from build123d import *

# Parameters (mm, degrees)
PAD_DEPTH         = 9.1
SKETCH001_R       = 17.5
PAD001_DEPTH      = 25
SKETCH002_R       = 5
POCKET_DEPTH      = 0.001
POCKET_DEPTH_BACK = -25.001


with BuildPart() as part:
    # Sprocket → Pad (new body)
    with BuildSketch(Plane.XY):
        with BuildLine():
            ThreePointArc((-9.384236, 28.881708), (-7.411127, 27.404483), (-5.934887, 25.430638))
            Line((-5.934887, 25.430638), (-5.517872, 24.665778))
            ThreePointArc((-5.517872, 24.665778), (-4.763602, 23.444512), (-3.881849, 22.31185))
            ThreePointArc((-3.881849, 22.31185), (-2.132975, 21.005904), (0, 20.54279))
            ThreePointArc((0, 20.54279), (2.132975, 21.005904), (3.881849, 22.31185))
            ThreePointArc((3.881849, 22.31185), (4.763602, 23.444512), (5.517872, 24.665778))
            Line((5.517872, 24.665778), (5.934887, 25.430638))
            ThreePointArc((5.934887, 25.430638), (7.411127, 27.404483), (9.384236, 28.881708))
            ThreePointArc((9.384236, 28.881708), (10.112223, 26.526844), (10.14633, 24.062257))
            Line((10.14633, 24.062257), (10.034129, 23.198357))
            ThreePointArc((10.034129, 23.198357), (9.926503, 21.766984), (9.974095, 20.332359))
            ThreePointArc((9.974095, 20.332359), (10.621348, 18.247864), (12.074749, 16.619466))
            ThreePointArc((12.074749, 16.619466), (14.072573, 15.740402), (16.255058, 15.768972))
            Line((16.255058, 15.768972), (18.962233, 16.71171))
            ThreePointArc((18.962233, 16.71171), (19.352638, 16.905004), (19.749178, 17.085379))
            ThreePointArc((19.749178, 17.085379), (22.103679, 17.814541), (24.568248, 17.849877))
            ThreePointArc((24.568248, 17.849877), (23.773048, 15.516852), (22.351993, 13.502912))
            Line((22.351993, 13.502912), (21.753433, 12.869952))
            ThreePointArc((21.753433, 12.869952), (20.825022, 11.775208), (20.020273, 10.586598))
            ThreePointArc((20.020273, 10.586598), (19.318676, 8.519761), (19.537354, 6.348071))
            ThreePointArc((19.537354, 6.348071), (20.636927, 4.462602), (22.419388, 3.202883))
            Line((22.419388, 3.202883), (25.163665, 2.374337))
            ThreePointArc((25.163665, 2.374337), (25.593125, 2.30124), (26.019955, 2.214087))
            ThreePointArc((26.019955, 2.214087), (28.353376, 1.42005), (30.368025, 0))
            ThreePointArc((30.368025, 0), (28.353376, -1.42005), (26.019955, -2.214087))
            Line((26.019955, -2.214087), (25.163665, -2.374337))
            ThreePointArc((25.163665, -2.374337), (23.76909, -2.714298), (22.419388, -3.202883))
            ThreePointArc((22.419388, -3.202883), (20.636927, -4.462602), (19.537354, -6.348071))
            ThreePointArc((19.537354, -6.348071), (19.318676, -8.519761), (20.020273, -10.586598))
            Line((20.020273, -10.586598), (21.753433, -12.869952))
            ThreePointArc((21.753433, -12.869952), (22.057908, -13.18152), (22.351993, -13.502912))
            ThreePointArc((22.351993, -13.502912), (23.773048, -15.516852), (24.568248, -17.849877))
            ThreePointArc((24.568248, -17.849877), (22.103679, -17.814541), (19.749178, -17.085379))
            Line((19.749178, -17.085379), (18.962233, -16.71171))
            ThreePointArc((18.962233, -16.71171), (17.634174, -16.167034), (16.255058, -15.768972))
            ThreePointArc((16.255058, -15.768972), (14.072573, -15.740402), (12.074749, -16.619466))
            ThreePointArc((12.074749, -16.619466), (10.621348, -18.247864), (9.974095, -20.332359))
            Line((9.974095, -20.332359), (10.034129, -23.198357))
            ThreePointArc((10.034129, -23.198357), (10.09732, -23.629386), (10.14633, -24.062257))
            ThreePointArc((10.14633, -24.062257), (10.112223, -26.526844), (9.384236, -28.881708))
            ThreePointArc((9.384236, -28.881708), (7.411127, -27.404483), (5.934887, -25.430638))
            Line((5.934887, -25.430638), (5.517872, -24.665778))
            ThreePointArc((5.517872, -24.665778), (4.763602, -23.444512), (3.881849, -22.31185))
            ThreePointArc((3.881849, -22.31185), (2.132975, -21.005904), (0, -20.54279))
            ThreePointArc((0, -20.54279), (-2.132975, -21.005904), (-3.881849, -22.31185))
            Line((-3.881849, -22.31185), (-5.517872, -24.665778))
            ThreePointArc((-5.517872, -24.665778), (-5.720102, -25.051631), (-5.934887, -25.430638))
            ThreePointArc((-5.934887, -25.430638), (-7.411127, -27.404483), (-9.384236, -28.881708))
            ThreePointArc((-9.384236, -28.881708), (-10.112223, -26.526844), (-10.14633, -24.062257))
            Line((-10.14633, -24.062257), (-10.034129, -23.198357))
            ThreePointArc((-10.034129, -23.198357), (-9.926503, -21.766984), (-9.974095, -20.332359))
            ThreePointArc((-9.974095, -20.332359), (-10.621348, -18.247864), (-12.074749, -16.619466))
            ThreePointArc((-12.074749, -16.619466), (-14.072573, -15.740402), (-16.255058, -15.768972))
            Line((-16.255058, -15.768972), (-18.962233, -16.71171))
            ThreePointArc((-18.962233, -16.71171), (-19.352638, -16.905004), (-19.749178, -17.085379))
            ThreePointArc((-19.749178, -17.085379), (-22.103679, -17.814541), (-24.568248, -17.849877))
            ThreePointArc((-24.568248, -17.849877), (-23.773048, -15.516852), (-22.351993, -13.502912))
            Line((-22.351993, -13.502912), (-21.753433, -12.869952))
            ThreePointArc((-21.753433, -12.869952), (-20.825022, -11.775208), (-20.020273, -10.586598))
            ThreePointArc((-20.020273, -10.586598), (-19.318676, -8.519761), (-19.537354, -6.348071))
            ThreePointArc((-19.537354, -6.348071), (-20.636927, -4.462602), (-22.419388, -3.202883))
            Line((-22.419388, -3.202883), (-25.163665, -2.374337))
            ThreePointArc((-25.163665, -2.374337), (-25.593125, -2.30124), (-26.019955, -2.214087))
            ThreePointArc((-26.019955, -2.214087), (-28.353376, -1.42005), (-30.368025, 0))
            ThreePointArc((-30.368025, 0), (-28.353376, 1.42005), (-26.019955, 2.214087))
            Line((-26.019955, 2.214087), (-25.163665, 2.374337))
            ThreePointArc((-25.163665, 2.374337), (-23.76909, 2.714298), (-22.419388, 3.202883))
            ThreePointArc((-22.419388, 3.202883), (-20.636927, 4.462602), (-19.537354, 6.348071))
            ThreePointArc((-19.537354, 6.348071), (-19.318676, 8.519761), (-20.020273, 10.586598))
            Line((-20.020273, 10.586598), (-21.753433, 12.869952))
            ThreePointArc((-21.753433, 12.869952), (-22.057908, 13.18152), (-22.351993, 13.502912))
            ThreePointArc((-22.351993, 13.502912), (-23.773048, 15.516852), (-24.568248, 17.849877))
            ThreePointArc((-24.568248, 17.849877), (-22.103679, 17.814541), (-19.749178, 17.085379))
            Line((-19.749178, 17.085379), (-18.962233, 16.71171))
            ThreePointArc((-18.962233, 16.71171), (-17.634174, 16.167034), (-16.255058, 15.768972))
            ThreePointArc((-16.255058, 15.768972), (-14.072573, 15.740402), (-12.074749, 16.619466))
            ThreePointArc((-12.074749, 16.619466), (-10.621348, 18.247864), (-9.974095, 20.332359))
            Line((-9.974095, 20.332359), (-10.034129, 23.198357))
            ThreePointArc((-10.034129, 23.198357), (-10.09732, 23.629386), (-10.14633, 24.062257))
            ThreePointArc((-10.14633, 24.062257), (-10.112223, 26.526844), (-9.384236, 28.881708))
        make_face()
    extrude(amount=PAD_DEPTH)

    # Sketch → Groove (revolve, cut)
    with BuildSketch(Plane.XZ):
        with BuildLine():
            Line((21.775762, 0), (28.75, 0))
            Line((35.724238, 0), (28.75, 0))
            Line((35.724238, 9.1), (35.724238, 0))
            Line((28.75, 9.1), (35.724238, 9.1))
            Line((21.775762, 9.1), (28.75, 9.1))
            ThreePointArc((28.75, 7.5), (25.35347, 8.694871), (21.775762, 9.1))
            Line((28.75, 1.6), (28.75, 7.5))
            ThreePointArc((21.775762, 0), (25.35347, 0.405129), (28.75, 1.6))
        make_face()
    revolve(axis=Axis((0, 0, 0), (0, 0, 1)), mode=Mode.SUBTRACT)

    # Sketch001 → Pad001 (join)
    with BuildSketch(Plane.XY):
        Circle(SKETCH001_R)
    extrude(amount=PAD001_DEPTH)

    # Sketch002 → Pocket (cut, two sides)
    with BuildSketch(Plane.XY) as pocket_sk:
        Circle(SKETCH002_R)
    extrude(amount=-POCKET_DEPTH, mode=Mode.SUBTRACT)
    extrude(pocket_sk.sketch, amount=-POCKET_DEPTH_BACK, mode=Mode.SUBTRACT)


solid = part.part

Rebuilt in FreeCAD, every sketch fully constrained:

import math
import FreeCAD as App
import Part
import Sketcher

V = App.Vector
Q = App.Units.Quantity

doc = App.newDocument("Part")
body = doc.addObject("PartDesign::Body", "Body")

sketch1 = doc.addObject("Sketcher::SketchObject", "Sketch")
body.addObject(sketch1)
sketch1.AttachmentSupport = (doc.XY_Plane, [""])
sketch1.MapMode = "FlatFace"
sketch1.addGeometry([
    Part.ArcOfCircle(Part.Circle(V(-13.527819, 21.290842, 0), V(0, 0, 1), 8.648151), math.radians(28.599971), math.radians(61.371449)),
    Part.ArcOfCircle(Part.Circle(V(-1.570193, 25.176103, 0), V(0, 0, 1), 8.648166), math.radians(154.628578), math.radians(187.400001)),
    Part.ArcOfCircle(Part.Circle(V(3.063298, 25.338652, 0), V(0, 0, 1), 13.271151), math.radians(-174.480867), math.radians(-170.719135)),
    Part.LineSegment(V(-10.034129, 23.198357, 0), V(-9.974095, 20.332359, 0)),
    Part.ArcOfCircle(Part.Circle(V(-15.098022, 20.780645, 0), V(0, 0, 1), 5.143499), math.radians(-54.000004), math.radians(-5.000001)),
    Part.ArcOfCircle(Part.Circle(V(-15.098023, 20.780644, 0), V(0, 0, 1), 5.1435), math.radians(-102.999995), math.radians(-53.999991)),
    Part.ArcOfCircle(Part.Circle(V(-13.269585, 28.700426, 0), V(0, 0, 1), 13.271606), math.radians(-115.399949), math.radians(-103.000048)),
    Part.LineSegment(V(-18.962233, 16.71171, 0), V(-19.749178, 17.085379, 0)),
    Part.ArcOfCircle(Part.Circle(V(-23.458679, 9.273194, 0), V(0, 0, 1), 8.648158), math.radians(64.599981), math.radians(97.371435)),
    Part.ArcOfCircle(Part.Circle(V(-16.068465, 19.444953, 0), V(0, 0, 1), 8.648155), math.radians(-169.371442), math.radians(-136.59998)),
    Part.ArcOfCircle(Part.Circle(V(-12.414697, 22.300643, 0), V(0, 0, 1), 13.272148), math.radians(-138.480749), math.radians(-134.7193)),
    Part.LineSegment(V(-21.753433, 12.869952, 0), V(-20.020273, 10.586598, 0)),
    Part.ArcOfCircle(Part.Circle(V(-24.429109, 7.9375, 0), V(0, 0, 1), 5.143496), math.radians(-18.00002), math.radians(31.000016)),
    Part.ArcOfCircle(Part.Circle(V(-24.429114, 7.9375, 0), V(0, 0, 1), 5.143501), math.radians(-67), math.radians(-18.000004)),
    Part.ArcOfCircle(Part.Circle(V(-27.604988, 15.419404, 0), V(0, 0, 1), 13.271542), math.radians(-79.39998), math.radians(-67.000023)),
    Part.LineSegment(V(-25.163665, 2.374337, 0), V(-26.019955, 2.214087, 0)),
    Part.ArcOfCircle(Part.Circle(V(-24.42911, -6.286506, 0), V(0, 0, 1), 8.648172), math.radians(100.600015), math.radians(133.371415)),
    Part.ArcOfCircle(Part.Circle(V(-24.42911, 6.286506, 0), V(0, 0, 1), 8.648172), math.radians(-133.371415), math.radians(-100.600015)),
    Part.ArcOfCircle(Part.Circle(V(-23.151849, 10.743632, 0), V(0, 0, 1), 13.271342), math.radians(-102.480819), math.radians(-98.71914)),
    Part.LineSegment(V(-25.163665, -2.374337, 0), V(-22.419388, -3.202883, 0)),
    Part.ArcOfCircle(Part.Circle(V(-24.429114, -7.9375, 0), V(0, 0, 1), 5.143501), math.radians(18.000004), math.radians(67)),
    Part.ArcOfCircle(Part.Circle(V(-24.429109, -7.9375, 0), V(0, 0, 1), 5.143496), math.radians(-31.000016), math.radians(18.00002)),
    Part.ArcOfCircle(Part.Circle(V(-31.396112, -3.751313, 0), V(0, 0, 1), 13.271429), math.radians(-43.400033), math.radians(-30.999967)),
    Part.LineSegment(V(-21.753433, -12.869952, 0), V(-22.351993, -13.502912, 0)),
    Part.ArcOfCircle(Part.Circle(V(-16.068465, -19.444953, 0), V(0, 0, 1), 8.648155), math.radians(136.59998), math.radians(169.371442)),
    Part.ArcOfCircle(Part.Circle(V(-23.458679, -9.273194, 0), V(0, 0, 1), 8.648158), math.radians(-97.371435), math.radians(-64.599981)),
    Part.ArcOfCircle(Part.Circle(V(-25.044465, -4.918046, 0), V(0, 0, 1), 13.269667), math.radians(-66.481072), math.radians(-62.718923)),
    Part.LineSegment(V(-18.962233, -16.71171, 0), V(-16.255058, -15.768972, 0)),
    Part.ArcOfCircle(Part.Circle(V(-15.098023, -20.780644, 0), V(0, 0, 1), 5.1435), math.radians(53.999991), math.radians(102.999995)),
    Part.ArcOfCircle(Part.Circle(V(-15.098022, -20.780645, 0), V(0, 0, 1), 5.143499), math.radians(5.000001), math.radians(54.000004)),
    Part.ArcOfCircle(Part.Circle(V(-23.194997, -21.489049, 0), V(0, 0, 1), 13.271405), math.radians(-7.400042), math.radians(5.000046)),
    Part.LineSegment(V(-10.034129, -23.198357, 0), V(-10.14633, -24.062257, 0)),
    Part.ArcOfCircle(Part.Circle(V(-1.570193, -25.176103, 0), V(0, 0, 1), 8.648166), math.radians(172.599999), math.radians(205.371422)),
    Part.ArcOfCircle(Part.Circle(V(-13.527819, -21.290842, 0), V(0, 0, 1), 8.648151), math.radians(-61.371449), math.radians(-28.599971)),
    Part.ArcOfCircle(Part.Circle(V(-17.371892, -18.698872, 0), V(0, 0, 1), 13.271087), math.radians(-30.480863), math.radians(-26.719113)),
    Part.LineSegment(V(-5.517872, -24.665778, 0), V(-3.881849, -22.31185, 0)),
    Part.ArcOfCircle(Part.Circle(V(-0.000001, -25.686289, 0), V(0, 0, 1), 5.143499), math.radians(89.99999), math.radians(138.999997)),
    Part.ArcOfCircle(Part.Circle(V(0.000001, -25.686289, 0), V(0, 0, 1), 5.143499), math.radians(41.000003), math.radians(90.00001)),
    Part.ArcOfCircle(Part.Circle(V(-6.134339, -31.018781, 0), V(0, 0, 1), 13.271574), math.radians(28.600042), math.radians(40.999972)),
    Part.LineSegment(V(5.517872, -24.665778, 0), V(5.934887, -25.430638, 0)),
    Part.ArcOfCircle(Part.Circle(V(13.527819, -21.290842, 0), V(0, 0, 1), 8.648151), math.radians(-151.400029), math.radians(-118.628551)),
    Part.ArcOfCircle(Part.Circle(V(1.570193, -25.176103, 0), V(0, 0, 1), 8.648166), math.radians(-25.371422), math.radians(7.400001)),
    Part.ArcOfCircle(Part.Circle(V(-3.063298, -25.338652, 0), V(0, 0, 1), 13.271151), math.radians(5.519133), math.radians(9.280865)),
    Part.LineSegment(V(10.034129, -23.198357, 0), V(9.974095, -20.332359, 0)),
    Part.ArcOfCircle(Part.Circle(V(15.098022, -20.780645, 0), V(0, 0, 1), 5.143499), math.radians(125.999996), math.radians(174.999999)),
    Part.ArcOfCircle(Part.Circle(V(15.098023, -20.780644, 0), V(0, 0, 1), 5.1435), math.radians(77.000005), math.radians(126.000009)),
    Part.ArcOfCircle(Part.Circle(V(13.269585, -28.700426, 0), V(0, 0, 1), 13.271606), math.radians(64.600051), math.radians(76.999952)),
    Part.LineSegment(V(18.962233, -16.71171, 0), V(19.749178, -17.085379, 0)),
    Part.ArcOfCircle(Part.Circle(V(23.458679, -9.273194, 0), V(0, 0, 1), 8.648158), math.radians(-115.400019), math.radians(-82.628565)),
    Part.ArcOfCircle(Part.Circle(V(16.068465, -19.444953, 0), V(0, 0, 1), 8.648155), math.radians(10.628558), math.radians(43.40002)),
    Part.ArcOfCircle(Part.Circle(V(12.414697, -22.300643, 0), V(0, 0, 1), 13.272148), math.radians(41.519251), math.radians(45.2807)),
    Part.LineSegment(V(21.753433, -12.869952, 0), V(20.020273, -10.586598, 0)),
    Part.ArcOfCircle(Part.Circle(V(24.429109, -7.9375, 0), V(0, 0, 1), 5.143496), math.radians(161.99998), math.radians(211.000016)),
    Part.ArcOfCircle(Part.Circle(V(24.429114, -7.9375, 0), V(0, 0, 1), 5.143501), math.radians(113), math.radians(161.999996)),
    Part.ArcOfCircle(Part.Circle(V(27.604988, -15.419404, 0), V(0, 0, 1), 13.271542), math.radians(100.60002), math.radians(112.999977)),
    Part.LineSegment(V(25.163665, -2.374337, 0), V(26.019955, -2.214087, 0)),
    Part.ArcOfCircle(Part.Circle(V(24.42911, 6.286506, 0), V(0, 0, 1), 8.648172), math.radians(-79.399985), math.radians(-46.628585)),
    Part.ArcOfCircle(Part.Circle(V(24.42911, -6.286506, 0), V(0, 0, 1), 8.648172), math.radians(46.628585), math.radians(79.399985)),
    Part.ArcOfCircle(Part.Circle(V(23.151849, -10.743632, 0), V(0, 0, 1), 13.271342), math.radians(77.519181), math.radians(81.28086)),
    Part.LineSegment(V(25.163665, 2.374337, 0), V(22.419388, 3.202883, 0)),
    Part.ArcOfCircle(Part.Circle(V(24.429114, 7.9375, 0), V(0, 0, 1), 5.143501), math.radians(-161.999996), math.radians(-113)),
    Part.ArcOfCircle(Part.Circle(V(24.429109, 7.9375, 0), V(0, 0, 1), 5.143496), math.radians(148.999984), math.radians(198.00002)),
    Part.ArcOfCircle(Part.Circle(V(31.396112, 3.751313, 0), V(0, 0, 1), 13.271429), math.radians(136.599967), math.radians(149.000033)),
    Part.LineSegment(V(21.753433, 12.869952, 0), V(22.351993, 13.502912, 0)),
    Part.ArcOfCircle(Part.Circle(V(16.068465, 19.444953, 0), V(0, 0, 1), 8.648155), math.radians(-43.40002), math.radians(-10.628558)),
    Part.ArcOfCircle(Part.Circle(V(23.458679, 9.273194, 0), V(0, 0, 1), 8.648158), math.radians(82.628565), math.radians(115.400019)),
    Part.ArcOfCircle(Part.Circle(V(25.044465, 4.918046, 0), V(0, 0, 1), 13.269667), math.radians(113.518928), math.radians(117.281077)),
    Part.LineSegment(V(18.962233, 16.71171, 0), V(16.255058, 15.768972, 0)),
    Part.ArcOfCircle(Part.Circle(V(15.098023, 20.780644, 0), V(0, 0, 1), 5.1435), math.radians(-126.000009), math.radians(-77.000005)),
    Part.ArcOfCircle(Part.Circle(V(15.098022, 20.780645, 0), V(0, 0, 1), 5.143499), math.radians(-174.999999), math.radians(-125.999996)),
    Part.ArcOfCircle(Part.Circle(V(23.194997, 21.489049, 0), V(0, 0, 1), 13.271405), math.radians(172.599958), math.radians(185.000046)),
    Part.LineSegment(V(10.034129, 23.198357, 0), V(10.14633, 24.062257, 0)),
    Part.ArcOfCircle(Part.Circle(V(1.570193, 25.176103, 0), V(0, 0, 1), 8.648166), math.radians(-7.400001), math.radians(25.371422)),
    Part.ArcOfCircle(Part.Circle(V(13.527819, 21.290842, 0), V(0, 0, 1), 8.648151), math.radians(118.628551), math.radians(151.400029)),
    Part.LineSegment(V(5.934887, 25.430638, 0), V(5.517872, 24.665778, 0)),
    Part.ArcOfCircle(Part.Circle(V(-6.134339, 31.018781, 0), V(0, 0, 1), 13.271574), math.radians(-40.999972), math.radians(-28.600042)),
    Part.ArcOfCircle(Part.Circle(V(0.000001, 25.686289, 0), V(0, 0, 1), 5.143499), math.radians(-90.00001), math.radians(-41.000003)),
    Part.ArcOfCircle(Part.Circle(V(-0.000001, 25.686289, 0), V(0, 0, 1), 5.143499), math.radians(-138.999997), math.radians(-89.99999)),
    Part.ArcOfCircle(Part.Circle(V(6.134339, 31.018781, 0), V(0, 0, 1), 13.271574), math.radians(-151.399958), math.radians(-139.000028)),
    Part.LineSegment(V(-5.517872, 24.665778, 0), V(-5.934887, 25.430638, 0)),
], False)
sketch1.addConstraint([
    Sketcher.Constraint("Coincident", 0, 2, 1, 1),
    Sketcher.Constraint("Coincident", 1, 2, 2, 1),
    Sketcher.Constraint("Coincident", 2, 2, 3, 1),
    Sketcher.Constraint("Coincident", 3, 2, 4, 2),
    Sketcher.Constraint("Coincident", 4, 1, 5, 2),
    Sketcher.Constraint("Coincident", 5, 1, 6, 2),
    Sketcher.Constraint("Coincident", 6, 1, 7, 1),
    Sketcher.Constraint("Coincident", 7, 2, 8, 1),
    Sketcher.Constraint("Coincident", 8, 2, 9, 1),
    Sketcher.Constraint("Coincident", 9, 2, 10, 1),
    Sketcher.Constraint("Coincident", 10, 2, 11, 1),
    Sketcher.Constraint("Coincident", 11, 2, 12, 2),
    Sketcher.Constraint("Coincident", 12, 1, 13, 2),
    Sketcher.Constraint("Coincident", 13, 1, 14, 2),
    Sketcher.Constraint("Coincident", 14, 1, 15, 1),
    Sketcher.Constraint("Coincident", 15, 2, 16, 1),
    Sketcher.Constraint("Coincident", 16, 2, 17, 1),
    Sketcher.Constraint("Coincident", 17, 2, 18, 1),
    Sketcher.Constraint("Coincident", 18, 2, 19, 1),
    Sketcher.Constraint("Coincident", 19, 2, 20, 2),
    Sketcher.Constraint("Coincident", 20, 1, 21, 2),
    Sketcher.Constraint("Coincident", 21, 1, 22, 2),
    Sketcher.Constraint("Coincident", 22, 1, 23, 1),
    Sketcher.Constraint("Coincident", 23, 2, 24, 1),
    Sketcher.Constraint("Coincident", 24, 2, 25, 1),
    Sketcher.Constraint("Coincident", 25, 2, 26, 1),
    Sketcher.Constraint("Coincident", 26, 2, 27, 1),
    Sketcher.Constraint("Coincident", 27, 2, 28, 2),
    Sketcher.Constraint("Coincident", 28, 1, 29, 2),
    Sketcher.Constraint("Coincident", 29, 1, 30, 2),
    Sketcher.Constraint("Coincident", 30, 1, 31, 1),
    Sketcher.Constraint("Coincident", 31, 2, 32, 1),
    Sketcher.Constraint("Coincident", 32, 2, 33, 1),
    Sketcher.Constraint("Coincident", 33, 2, 34, 1),
    Sketcher.Constraint("Coincident", 34, 2, 35, 1),
    Sketcher.Constraint("Coincident", 35, 2, 36, 2),
    Sketcher.Constraint("Coincident", 36, 1, 37, 2),
    Sketcher.Constraint("Coincident", 37, 1, 38, 2),
    Sketcher.Constraint("Coincident", 38, 1, 39, 1),
    Sketcher.Constraint("Coincident", 39, 2, 40, 1),
    Sketcher.Constraint("Coincident", 40, 2, 41, 1),
    Sketcher.Constraint("Coincident", 41, 2, 42, 1),
    Sketcher.Constraint("Coincident", 42, 2, 43, 1),
    Sketcher.Constraint("Coincident", 43, 2, 44, 2),
    Sketcher.Constraint("Coincident", 44, 1, 45, 2),
    Sketcher.Constraint("Coincident", 45, 1, 46, 2),
    Sketcher.Constraint("Coincident", 46, 1, 47, 1),
    Sketcher.Constraint("Coincident", 47, 2, 48, 1),
    Sketcher.Constraint("Coincident", 48, 2, 49, 1),
    Sketcher.Constraint("Coincident", 49, 2, 50, 1),
    Sketcher.Constraint("Coincident", 50, 2, 51, 1),
    Sketcher.Constraint("Coincident", 51, 2, 52, 2),
    Sketcher.Constraint("Coincident", 52, 1, 53, 2),
    Sketcher.Constraint("Coincident", 53, 1, 54, 2),
    Sketcher.Constraint("Coincident", 54, 1, 55, 1),
    Sketcher.Constraint("Coincident", 55, 2, 56, 1),
    Sketcher.Constraint("Coincident", 56, 2, 57, 1),
    Sketcher.Constraint("Coincident", 57, 2, 58, 1),
    Sketcher.Constraint("Coincident", 58, 2, 59, 1),
    Sketcher.Constraint("Coincident", 59, 2, 60, 2),
    Sketcher.Constraint("Coincident", 60, 1, 61, 2),
    Sketcher.Constraint("Coincident", 61, 1, 62, 2),
    Sketcher.Constraint("Coincident", 62, 1, 63, 1),
    Sketcher.Constraint("Coincident", 63, 2, 64, 1),
    Sketcher.Constraint("Coincident", 64, 2, 65, 1),
    Sketcher.Constraint("Coincident", 65, 2, 66, 1),
    Sketcher.Constraint("Coincident", 66, 2, 67, 1),
    Sketcher.Constraint("Coincident", 67, 2, 68, 2),
    Sketcher.Constraint("Coincident", 68, 1, 69, 2),
    Sketcher.Constraint("Coincident", 69, 1, 70, 2),
    Sketcher.Constraint("Coincident", 70, 1, 71, 1),
    Sketcher.Constraint("Coincident", 71, 2, 72, 1),
    Sketcher.Constraint("Coincident", 72, 2, 73, 1),
    Sketcher.Constraint("Coincident", 73, 2, 74, 1),
    Sketcher.Constraint("Coincident", 74, 2, 75, 2),
    Sketcher.Constraint("Coincident", 75, 1, 76, 2),
    Sketcher.Constraint("Coincident", 76, 1, 77, 2),
    Sketcher.Constraint("Coincident", 77, 1, 78, 2),
    Sketcher.Constraint("Coincident", 78, 1, 79, 1),
    Sketcher.Constraint("Coincident", 79, 2, 0, 1),
    Sketcher.Constraint("Coincident", 5, 3, 4, 3),
    Sketcher.Constraint("Coincident", 13, 3, 12, 3),
    Sketcher.Constraint("Coincident", 21, 3, 20, 3),
    Sketcher.Constraint("Coincident", 29, 3, 28, 3),
    Sketcher.Constraint("Coincident", 37, 3, 36, 3),
    Sketcher.Constraint("Coincident", 45, 3, 44, 3),
    Sketcher.Constraint("Coincident", 53, 3, 52, 3),
    Sketcher.Constraint("Coincident", 61, 3, 60, 3),
    Sketcher.Constraint("Coincident", 69, 3, 68, 3),
    Sketcher.Constraint("Coincident", 77, 3, 76, 3),
    Sketcher.Constraint("PointOnObject", 36, 3, -2),
    Sketcher.Constraint("PointOnObject", 76, 3, -2),
    Sketcher.Constraint("PointOnObject", 16, 2, -1),
    Sketcher.Constraint("PointOnObject", 36, 1, -2),
    Sketcher.Constraint("PointOnObject", 56, 2, -1),
    Sketcher.Constraint("PointOnObject", 76, 1, -2),
    Sketcher.Constraint("Radius", 4, Q("5.143499 mm")),
    Sketcher.Constraint("Radius", 13, Q("5.143501 mm")),
    Sketcher.Constraint("Radius", 20, Q("5.143501 mm")),
    Sketcher.Constraint("Radius", 28, Q("5.1435 mm")),
    Sketcher.Constraint("Radius", 36, Q("5.143499 mm")),
    Sketcher.Constraint("Radius", 44, Q("5.143499 mm")),
    Sketcher.Constraint("Radius", 53, Q("5.143501 mm")),
    Sketcher.Constraint("Radius", 60, Q("5.143501 mm")),
    Sketcher.Constraint("Radius", 68, Q("5.1435 mm")),
    Sketcher.Constraint("Radius", 76, Q("5.143499 mm")),
    Sketcher.Constraint("Radius", 0, Q("8.648151 mm")),
    Sketcher.Constraint("Radius", 2, Q("13.271151 mm")),
    Sketcher.Constraint("Radius", 10, Q("13.272148 mm")),
    Sketcher.Constraint("Radius", 14, Q("13.271542 mm")),
    Sketcher.Constraint("Radius", 16, Q("8.648172 mm")),
    Sketcher.Constraint("Radius", 17, Q("8.648172 mm")),
    Sketcher.Constraint("Radius", 18, Q("13.271342 mm")),
    Sketcher.Constraint("Radius", 22, Q("13.271429 mm")),
    Sketcher.Constraint("Radius", 33, Q("8.648151 mm")),
    Sketcher.Constraint("Radius", 40, Q("8.648151 mm")),
    Sketcher.Constraint("Radius", 42, Q("13.271151 mm")),
    Sketcher.Constraint("Radius", 50, Q("13.272148 mm")),
    Sketcher.Constraint("Radius", 54, Q("13.271542 mm")),
    Sketcher.Constraint("Radius", 56, Q("8.648172 mm")),
    Sketcher.Constraint("Radius", 57, Q("8.648172 mm")),
    Sketcher.Constraint("Radius", 58, Q("13.271342 mm")),
    Sketcher.Constraint("Radius", 62, Q("13.271429 mm")),
    Sketcher.Constraint("Radius", 73, Q("8.648151 mm")),
    Sketcher.Constraint("Radius", 1, Q("8.648166 mm")),
    Sketcher.Constraint("Radius", 6, Q("13.271606 mm")),
    Sketcher.Constraint("Radius", 8, Q("8.648158 mm")),
    Sketcher.Constraint("Radius", 9, Q("8.648155 mm")),
    Sketcher.Constraint("Radius", 24, Q("8.648155 mm")),
    Sketcher.Constraint("Radius", 25, Q("8.648158 mm")),
    Sketcher.Constraint("Radius", 26, Q("13.269667 mm")),
    Sketcher.Constraint("Radius", 30, Q("13.271405 mm")),
    Sketcher.Constraint("Radius", 32, Q("8.648166 mm")),
    Sketcher.Constraint("Radius", 34, Q("13.271087 mm")),
    Sketcher.Constraint("Radius", 38, Q("13.271574 mm")),
    Sketcher.Constraint("Radius", 41, Q("8.648166 mm")),
    Sketcher.Constraint("Radius", 46, Q("13.271606 mm")),
    Sketcher.Constraint("Radius", 48, Q("8.648158 mm")),
    Sketcher.Constraint("Radius", 49, Q("8.648155 mm")),
    Sketcher.Constraint("Radius", 64, Q("8.648155 mm")),
    Sketcher.Constraint("Radius", 65, Q("8.648158 mm")),
    Sketcher.Constraint("Radius", 66, Q("13.269667 mm")),
    Sketcher.Constraint("Radius", 70, Q("13.271405 mm")),
    Sketcher.Constraint("Radius", 72, Q("8.648166 mm")),
    Sketcher.Constraint("Radius", 75, Q("13.271574 mm")),
    Sketcher.Constraint("Radius", 78, Q("13.271574 mm")),
    Sketcher.Constraint("DistanceX", -1, 1, 2, 3, Q("3.063298 mm")),
    Sketcher.Constraint("DistanceY", -1, 1, 12, 3, Q("7.9375 mm")),
    Sketcher.Constraint("DistanceY", 20, 3, -1, 1, Q("7.9375 mm")),
    Sketcher.Constraint("DistanceX", 42, 3, -1, 1, Q("3.063298 mm")),
    Sketcher.Constraint("DistanceY", 52, 3, -1, 1, Q("7.9375 mm")),
    Sketcher.Constraint("DistanceY", -1, 1, 60, 3, Q("7.9375 mm")),
    Sketcher.Constraint("DistanceX", 0, 3, -1, 1, Q("13.527819 mm")),
    Sketcher.Constraint("DistanceY", -1, 1, 2, 3, Q("25.338652 mm")),
    Sketcher.Constraint("DistanceX", 4, 3, -1, 1, Q("15.098022 mm")),
    Sketcher.Constraint("DistanceX", 8, 3, -1, 1, Q("23.458679 mm")),
    Sketcher.Constraint("DistanceX", 12, 3, -1, 1, Q("24.429109 mm")),
    Sketcher.Constraint("DistanceX", 16, 3, -1, 1, Q("24.42911 mm")),
    Sketcher.Constraint("DistanceX", 17, 3, -1, 1, Q("24.42911 mm")),
    Sketcher.Constraint("DistanceX", 18, 3, -1, 1, Q("23.151849 mm")),
    Sketcher.Constraint("DistanceX", 21, 3, -1, 1, Q("24.429109 mm")),
    Sketcher.Constraint("DistanceX", 25, 3, -1, 1, Q("23.458679 mm")),
    Sketcher.Constraint("DistanceX", 29, 3, -1, 1, Q("15.098022 mm")),
    Sketcher.Constraint("DistanceY", 30, 3, -1, 1, Q("21.489049 mm")),
    Sketcher.Constraint("DistanceX", 33, 3, -1, 1, Q("13.527819 mm")),
    Sketcher.Constraint("DistanceX", 34, 3, -1, 1, Q("17.371892 mm")),
    Sketcher.Constraint("DistanceY", 34, 3, -1, 1, Q("18.698872 mm")),
    Sketcher.Constraint("DistanceY", 36, 3, -1, 1, Q("25.686289 mm")),
    Sketcher.Constraint("DistanceX", 38, 3, -1, 1, Q("6.134339 mm")),
    Sketcher.Constraint("DistanceX", -1, 1, 40, 3, Q("13.527819 mm")),
    Sketcher.Constraint("DistanceY", 42, 3, -1, 1, Q("25.338652 mm")),
    Sketcher.Constraint("DistanceX", -1, 1, 44, 3, Q("15.098022 mm")),
    Sketcher.Constraint("DistanceX", -1, 1, 48, 3, Q("23.458679 mm")),
    Sketcher.Constraint("DistanceX", -1, 1, 52, 3, Q("24.429109 mm")),
    Sketcher.Constraint("DistanceX", -1, 1, 56, 3, Q("24.42911 mm")),
    Sketcher.Constraint("DistanceX", -1, 1, 57, 3, Q("24.42911 mm")),
    Sketcher.Constraint("DistanceX", -1, 1, 58, 3, Q("23.151849 mm")),
    Sketcher.Constraint("DistanceX", -1, 1, 61, 3, Q("24.429109 mm")),
    Sketcher.Constraint("DistanceX", -1, 1, 65, 3, Q("23.458679 mm")),
    Sketcher.Constraint("DistanceX", -1, 1, 69, 3, Q("15.098022 mm")),
    Sketcher.Constraint("DistanceY", -1, 1, 70, 3, Q("21.489049 mm")),
    Sketcher.Constraint("DistanceX", -1, 1, 73, 3, Q("13.527819 mm")),
    Sketcher.Constraint("DistanceX", 75, 3, -1, 1, Q("6.134339 mm")),
    Sketcher.Constraint("DistanceY", -1, 1, 75, 3, Q("31.018781 mm")),
    Sketcher.Constraint("DistanceX", -1, 1, 78, 3, Q("6.134339 mm")),
    Sketcher.Constraint("DistanceX", 1, 2, -1, 1, Q("10.14633 mm")),
    Sketcher.Constraint("DistanceX", 2, 2, -1, 1, Q("10.034129 mm")),
    Sketcher.Constraint("DistanceY", -1, 1, 3, 2, Q("20.332359 mm")),
    Sketcher.Constraint("DistanceX", 4, 1, -1, 1, Q("12.074749 mm")),
    Sketcher.Constraint("DistanceX", 5, 1, -1, 1, Q("16.255058 mm")),
    Sketcher.Constraint("DistanceY", -1, 1, 5, 1, Q("15.768972 mm")),
    Sketcher.Constraint("DistanceY", -1, 1, 6, 1, Q("16.71171 mm")),
    Sketcher.Constraint("DistanceX", 7, 2, -1, 1, Q("19.749178 mm")),
    Sketcher.Constraint("DistanceY", -1, 1, 7, 2, Q("17.085379 mm")),
    Sketcher.Constraint("DistanceX", 8, 2, -1, 1, Q("24.568248 mm")),
    Sketcher.Constraint("DistanceY", -1, 1, 12, 1, Q("6.348071 mm")),
    Sketcher.Constraint("DistanceX", 13, 1, -1, 1, Q("22.419388 mm")),
    Sketcher.Constraint("DistanceX", 19, 2, -1, 1, Q("22.419388 mm")),
    Sketcher.Constraint("DistanceY", 20, 1, -1, 1, Q("6.348071 mm")),
    Sketcher.Constraint("DistanceY", 22, 1, -1, 1, Q("12.869952 mm")),
    Sketcher.Constraint("DistanceX", 25, 2, -1, 1, Q("19.749178 mm")),
    Sketcher.Constraint("DistanceY", 25, 2, -1, 1, Q("17.085379 mm")),
    Sketcher.Constraint("DistanceY", 26, 2, -1, 1, Q("16.71171 mm")),
    Sketcher.Constraint("DistanceX", 28, 1, -1, 1, Q("12.074749 mm")),
    Sketcher.Constraint("DistanceY", 29, 1, -1, 1, Q("20.332359 mm")),
    Sketcher.Constraint("DistanceX", 30, 1, -1, 1, Q("10.034129 mm")),
    Sketcher.Constraint("DistanceX", 31, 2, -1, 1, Q("10.14633 mm")),
    Sketcher.Constraint("DistanceY", 32, 2, -1, 1, Q("28.881708 mm")),
    Sketcher.Constraint("DistanceX", 34, 2, -1, 1, Q("5.517872 mm")),
    Sketcher.Constraint("DistanceX", 35, 2, -1, 1, Q("3.881849 mm")),
    Sketcher.Constraint("DistanceX", -1, 1, 37, 1, Q("3.881849 mm")),
    Sketcher.Constraint("DistanceX", -1, 1, 41, 2, Q("10.14633 mm")),
    Sketcher.Constraint("DistanceX", -1, 1, 42, 2, Q("10.034129 mm")),
    Sketcher.Constraint("DistanceY", 43, 2, -1, 1, Q("20.332359 mm")),
    Sketcher.Constraint("DistanceX", -1, 1, 44, 1, Q("12.074749 mm")),
    Sketcher.Constraint("DistanceX", -1, 1, 45, 1, Q("16.255058 mm")),
    Sketcher.Constraint("DistanceY", 45, 1, -1, 1, Q("15.768972 mm")),
    Sketcher.Constraint("DistanceY", 46, 1, -1, 1, Q("16.71171 mm")),
    Sketcher.Constraint("DistanceX", -1, 1, 47, 2, Q("19.749178 mm")),
    Sketcher.Constraint("DistanceY", 47, 2, -1, 1, Q("17.085379 mm")),
    Sketcher.Constraint("DistanceX", -1, 1, 48, 2, Q("24.568248 mm")),
    Sketcher.Constraint("DistanceY", 52, 1, -1, 1, Q("6.348071 mm")),
    Sketcher.Constraint("DistanceX", -1, 1, 53, 1, Q("22.419388 mm")),
    Sketcher.Constraint("DistanceX", -1, 1, 59, 2, Q("22.419388 mm")),
    Sketcher.Constraint("DistanceY", -1, 1, 60, 1, Q("6.348071 mm")),
    Sketcher.Constraint("DistanceY", -1, 1, 62, 1, Q("12.869952 mm")),
    Sketcher.Constraint("DistanceX", -1, 1, 65, 2, Q("19.749178 mm")),
    Sketcher.Constraint("DistanceY", -1, 1, 65, 2, Q("17.085379 mm")),
    Sketcher.Constraint("DistanceY", -1, 1, 66, 2, Q("16.71171 mm")),
    Sketcher.Constraint("DistanceX", -1, 1, 68, 1, Q("12.074749 mm")),
    Sketcher.Constraint("DistanceY", -1, 1, 69, 1, Q("20.332359 mm")),
    Sketcher.Constraint("DistanceX", -1, 1, 70, 1, Q("10.034129 mm")),
    Sketcher.Constraint("DistanceX", -1, 1, 71, 2, Q("10.14633 mm")),
    Sketcher.Constraint("DistanceY", -1, 1, 72, 2, Q("28.881708 mm")),
    Sketcher.Constraint("DistanceX", -1, 1, 74, 2, Q("5.517872 mm")),
    Sketcher.Constraint("DistanceX", -1, 1, 75, 1, Q("3.881849 mm")),
    Sketcher.Constraint("DistanceX", 77, 1, -1, 1, Q("3.881849 mm")),
    Sketcher.Constraint("Distance", 7, Q("0.871155 mm")),
    Sketcher.Constraint("Distance", 11, Q("2.866627 mm")),
    Sketcher.Constraint("Distance", 15, Q("0.871156 mm")),
    Sketcher.Constraint("Distance", 19, Q("2.866626 mm")),
    Sketcher.Constraint("Distance", 23, Q("0.871156 mm")),
    Sketcher.Constraint("Distance", 27, Q("2.866627 mm")),
    Sketcher.Constraint("Distance", 31, Q("0.871156 mm")),
    Sketcher.Constraint("Distance", 39, Q("0.871156 mm")),
    Sketcher.Constraint("Distance", 47, Q("0.871155 mm")),
    Sketcher.Constraint("Distance", 51, Q("2.866627 mm")),
    Sketcher.Constraint("Distance", 55, Q("0.871156 mm")),
    Sketcher.Constraint("Distance", 59, Q("2.866626 mm")),
    Sketcher.Constraint("Distance", 63, Q("0.871156 mm")),
    Sketcher.Constraint("Distance", 67, Q("2.866627 mm")),
    Sketcher.Constraint("Distance", 71, Q("0.871156 mm")),
    Sketcher.Constraint("Distance", 74, Q("0.871156 mm")),
    Sketcher.Constraint("Distance", 79, Q("0.871156 mm")),
    Sketcher.Constraint("DistanceY", -1, 1, 0, 3, Q("21.290842 mm")),
    Sketcher.Constraint("DistanceX", 1, 3, -1, 1, Q("1.570193 mm")),
    Sketcher.Constraint("DistanceX", 9, 3, -1, 1, Q("16.068465 mm")),
    Sketcher.Constraint("DistanceX", 10, 3, -1, 1, Q("12.414697 mm")),
    Sketcher.Constraint("DistanceY", -1, 1, 10, 3, Q("22.300643 mm")),
    Sketcher.Constraint("DistanceX", 14, 3, -1, 1, Q("27.604988 mm")),
    Sketcher.Constraint("DistanceY", 16, 3, -1, 1, Q("6.286506 mm")),
    Sketcher.Constraint("DistanceY", -1, 1, 18, 3, Q("10.743632 mm")),
    Sketcher.Constraint("DistanceX", 22, 3, -1, 1, Q("31.396112 mm")),
    Sketcher.Constraint("DistanceX", 24, 3, -1, 1, Q("16.068465 mm")),
    Sketcher.Constraint("DistanceY", 24, 3, -1, 1, Q("19.444953 mm")),
    Sketcher.Constraint("DistanceX", 26, 3, -1, 1, Q("25.044465 mm")),
    Sketcher.Constraint("DistanceY", 28, 3, -1, 1, Q("20.780644 mm")),
    Sketcher.Constraint("DistanceX", 32, 3, -1, 1, Q("1.570193 mm")),
    Sketcher.Constraint("DistanceY", 40, 3, -1, 1, Q("21.290842 mm")),
    Sketcher.Constraint("DistanceX", -1, 1, 41, 3, Q("1.570193 mm")),
    Sketcher.Constraint("DistanceX", -1, 1, 49, 3, Q("16.068465 mm")),
    Sketcher.Constraint("DistanceX", -1, 1, 50, 3, Q("12.414697 mm")),
    Sketcher.Constraint("DistanceY", 50, 3, -1, 1, Q("22.300643 mm")),
    Sketcher.Constraint("DistanceX", -1, 1, 54, 3, Q("27.604988 mm")),
    Sketcher.Constraint("DistanceY", -1, 1, 56, 3, Q("6.286506 mm")),
    Sketcher.Constraint("DistanceY", 58, 3, -1, 1, Q("10.743632 mm")),
    Sketcher.Constraint("DistanceX", -1, 1, 62, 3, Q("31.396112 mm")),
    Sketcher.Constraint("DistanceX", -1, 1, 64, 3, Q("16.068465 mm")),
    Sketcher.Constraint("DistanceY", -1, 1, 64, 3, Q("19.444953 mm")),
    Sketcher.Constraint("DistanceX", -1, 1, 66, 3, Q("25.044465 mm")),
    Sketcher.Constraint("DistanceY", -1, 1, 68, 3, Q("20.780644 mm")),
    Sketcher.Constraint("DistanceX", -1, 1, 72, 3, Q("1.570193 mm")),
    Sketcher.Constraint("DistanceX", 10, 2, -1, 1, Q("21.753433 mm")),
    Sketcher.Constraint("DistanceX", 14, 1, -1, 1, Q("25.163665 mm")),
    Sketcher.Constraint("DistanceX", 21, 1, -1, 1, Q("20.020273 mm")),
    Sketcher.Constraint("DistanceX", -1, 1, 38, 1, Q("5.517872 mm")),
    Sketcher.Constraint("DistanceX", -1, 1, 50, 2, Q("21.753433 mm")),
    Sketcher.Constraint("DistanceX", -1, 1, 54, 1, Q("25.163665 mm")),
    Sketcher.Constraint("DistanceX", -1, 1, 61, 1, Q("20.020273 mm")),
    Sketcher.Constraint("DistanceX", 78, 1, -1, 1, Q("5.517872 mm")),
])
pad1 = doc.addObject("PartDesign::Pad", "Pad")
body.addObject(pad1)
pad1.Profile = sketch1
pad1.Length = 9.1

sketch2 = doc.addObject("Sketcher::SketchObject", "Sketch001")
body.addObject(sketch2)
sketch2.AttachmentSupport = (doc.XZ_Plane, [""])
sketch2.MapMode = "FlatFace"
sketch2.addGeometry([
    Part.LineSegment(V(22, 0, 0), V(36, 0, 0)),
    Part.LineSegment(V(36, 0, 0), V(36, 9, 0)),
    Part.LineSegment(V(36, 9, 0), V(22, 9, 0)),
    Part.ArcOfCircle(Part.Circle(V(22, -7, 0), V(0, 0, 1), 16), math.radians(64), math.radians(90)),
    Part.LineSegment(V(29, 8, 0), V(29, 2, 0)),
    Part.ArcOfCircle(Part.Circle(V(22, 16, 0), V(0, 0, 1), 16), math.radians(-90), math.radians(-64)),
], False)
sketch2.addConstraint([
    Sketcher.Constraint("Coincident", 0, 2, 1, 1),
    Sketcher.Constraint("Coincident", 1, 2, 2, 1),
    Sketcher.Constraint("Tangent", 2, 2, 3, 2),
    Sketcher.Constraint("Coincident", 3, 1, 4, 1),
    Sketcher.Constraint("Coincident", 4, 2, 5, 2),
    Sketcher.Constraint("Tangent", 5, 1, 0, 1),
    Sketcher.Constraint("Horizontal", 0),
    Sketcher.Constraint("Vertical", 1),
    Sketcher.Constraint("Horizontal", 2),
    Sketcher.Constraint("Vertical", 4),
    Sketcher.Constraint("Equal", 3, 5),
    Sketcher.Constraint("PointOnObject", 0, 2, -1),
    Sketcher.Constraint("Vertical", 3, 3, 5, 3),
    Sketcher.Constraint("DistanceY", 1, 1, 1, 2, Q("9.1 mm")),
    Sketcher.Constraint("DistanceY", 4, 2, 4, 1, Q("5.9 mm")),
    Sketcher.Constraint("DistanceX", -1, 1, 3, 1, Q("28.75 mm")),
    Sketcher.Constraint("Radius", 3, Q("16.000002 mm")),
    Sketcher.Constraint("DistanceX", 0, 1, 0, 2, Q("13.948476 mm")),
])
groove = doc.addObject("PartDesign::Groove", "Groove")
body.addObject(groove)
groove.Profile = sketch2
groove.ReferenceAxis = (sketch2, ["V_Axis"])
groove.Angle = 360

sketch3 = doc.addObject("Sketcher::SketchObject", "Sketch002")
body.addObject(sketch3)
sketch3.AttachmentSupport = (doc.XY_Plane, [""])
sketch3.MapMode = "FlatFace"
sketch3.addGeometry(Part.Circle(V(0, 0, 0), V(0, 0, 1), 18), False)
sketch3.addConstraint([
    Sketcher.Constraint("Coincident", 0, 3, -1, 1),
    Sketcher.Constraint("Diameter", 0, Q("35 mm")),
])
pad2 = doc.addObject("PartDesign::Pad", "Pad001")
body.addObject(pad2)
pad2.Profile = sketch3
pad2.Length = 25

sketch4 = doc.addObject("Sketcher::SketchObject", "Sketch003")
body.addObject(sketch4)
sketch4.AttachmentSupport = (doc.XY_Plane, [""])
sketch4.MapMode = "FlatFace"
sketch4.addGeometry(Part.Circle(V(0, 0, 0), V(0, 0, 1), 5), False)
sketch4.addConstraint([
    Sketcher.Constraint("Coincident", 0, 3, -1, 1),
    Sketcher.Constraint("Diameter", 0, Q("10 mm")),
])
pocket1 = doc.addObject("PartDesign::Pocket", "Pocket")
body.addObject(pocket1)
pocket1.Profile = sketch4
pocket1.Type = "ThroughAll"
pocket1.Midplane = True

doc.recompute()
